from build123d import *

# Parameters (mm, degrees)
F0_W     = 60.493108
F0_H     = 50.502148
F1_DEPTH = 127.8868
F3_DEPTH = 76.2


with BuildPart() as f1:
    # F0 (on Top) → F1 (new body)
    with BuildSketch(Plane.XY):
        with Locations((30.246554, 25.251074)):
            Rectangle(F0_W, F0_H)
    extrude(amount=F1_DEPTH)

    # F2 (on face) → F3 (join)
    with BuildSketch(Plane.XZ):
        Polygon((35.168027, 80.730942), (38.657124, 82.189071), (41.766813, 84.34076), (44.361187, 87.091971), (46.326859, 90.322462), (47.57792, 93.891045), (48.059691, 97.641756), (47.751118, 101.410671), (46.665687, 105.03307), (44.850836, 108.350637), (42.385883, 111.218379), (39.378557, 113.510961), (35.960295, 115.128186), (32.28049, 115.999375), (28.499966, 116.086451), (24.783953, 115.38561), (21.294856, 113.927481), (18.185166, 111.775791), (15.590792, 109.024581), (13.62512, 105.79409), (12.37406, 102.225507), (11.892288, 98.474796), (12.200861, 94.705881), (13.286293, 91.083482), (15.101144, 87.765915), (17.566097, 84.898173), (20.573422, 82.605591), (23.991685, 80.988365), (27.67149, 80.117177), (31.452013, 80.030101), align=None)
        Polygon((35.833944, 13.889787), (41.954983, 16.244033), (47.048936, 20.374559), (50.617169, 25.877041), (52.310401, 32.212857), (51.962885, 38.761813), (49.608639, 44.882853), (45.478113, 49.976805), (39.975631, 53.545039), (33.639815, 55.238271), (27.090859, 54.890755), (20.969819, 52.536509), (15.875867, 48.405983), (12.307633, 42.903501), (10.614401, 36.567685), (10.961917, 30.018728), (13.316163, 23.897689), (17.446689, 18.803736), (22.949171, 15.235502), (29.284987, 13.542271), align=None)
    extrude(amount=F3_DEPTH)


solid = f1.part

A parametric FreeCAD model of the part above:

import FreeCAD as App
import Part
import Sketcher
from FreeCAD import Vector
Q = App.Units.Quantity

doc = App.newDocument("Part")
body = doc.addObject("PartDesign::Body", "Body")

# Sketch on XY plane
sketch1 = body.newObject("Sketcher::SketchObject", "Sketch")
sketch1.AttachmentSupport = (doc.getObject("XY_Plane"), [""])
sketch1.MapMode = "FlatFace"
sketch1.addGeometry([
    Part.LineSegment(Vector(0, 51, 0), Vector(0, 0, 0)),
    Part.LineSegment(Vector(0, 0, 0), Vector(60, 0, 0)),
    Part.LineSegment(Vector(60, 0, 0), Vector(60, 51, 0)),
    Part.LineSegment(Vector(60, 51, 0), Vector(0, 51, 0)),
], False)
sketch1.addConstraint([
    Sketcher.Constraint("Coincident", 0, 2, 1, 1),
    Sketcher.Constraint("Coincident", 1, 2, 2, 1),
    Sketcher.Constraint("Coincident", 2, 2, 3, 1),
    Sketcher.Constraint("Coincident", 3, 2, 0, 1),
    Sketcher.Constraint("Vertical", 0),
    Sketcher.Constraint("Horizontal", 1),
    Sketcher.Constraint("Vertical", 2),
    Sketcher.Constraint("Horizontal", 3),
    Sketcher.Constraint("Coincident", 0, 2, -1, 1),
    Sketcher.Constraint("DistanceX", 1, 1, 1, 2, Q("60.493108 mm")),
    Sketcher.Constraint("DistanceY", 0, 2, 0, 1, Q("50.502148 mm")),
])
pad1 = body.newObject("PartDesign::Pad", "Pad")
pad1.Profile = sketch1
pad1.Length = 127.8868

# Sketch on XZ plane
sketch2 = body.newObject("Sketcher::SketchObject", "Sketch001")
sketch2.AttachmentSupport = (doc.getObject("XZ_Plane"), [""])
sketch2.MapMode = "FlatFace"
sketch2.addGeometry([
    Part.LineSegment(Vector(35.168027, 80.730942, 0), Vector(38.657124, 82.189071, 0)),  # 0
    Part.LineSegment(Vector(38.657124, 82.189071, 0), Vector(41.766813, 84.34076, 0)),  # 1
    Part.LineSegment(Vector(41.766813, 84.34076, 0), Vector(44.361187, 87.091971, 0)),  # 2
    Part.LineSegment(Vector(44.361187, 87.091971, 0), Vector(46.326859, 90.322462, 0)),  # 3
    Part.LineSegment(Vector(46.326859, 90.322462, 0), Vector(47.57792, 93.891045, 0)),  # 4
    Part.LineSegment(Vector(47.57792, 93.891045, 0), Vector(48.059691, 97.641756, 0)),  # 5
    Part.LineSegment(Vector(48.059691, 97.641756, 0), Vector(47.751118, 101.410671, 0)),  # 6
    Part.LineSegment(Vector(47.751118, 101.410671, 0), Vector(46.665687, 105.03307, 0)),  # 7
    Part.LineSegment(Vector(46.665687, 105.03307, 0), Vector(44.850836, 108.350637, 0)),  # 8
    Part.LineSegment(Vector(44.850836, 108.350637, 0), Vector(42.385883, 111.218379, 0)),  # 9
    Part.LineSegment(Vector(42.385883, 111.218379, 0), Vector(39.378557, 113.510961, 0)),  # 10
    Part.LineSegment(Vector(39.378557, 113.510961, 0), Vector(35.960295, 115.128186, 0)),  # 11
    Part.LineSegment(Vector(35.960295, 115.128186, 0), Vector(32.28049, 115.999375, 0)),  # 12
    Part.LineSegment(Vector(32.28049, 115.999375, 0), Vector(28.499966, 116.086451, 0)),  # 13
    Part.LineSegment(Vector(28.499966, 116.086451, 0), Vector(24.783953, 115.38561, 0)),  # 14
    Part.LineSegment(Vector(24.783953, 115.38561, 0), Vector(21.294856, 113.927481, 0)),  # 15
    Part.LineSegment(Vector(21.294856, 113.927481, 0), Vector(18.185166, 111.775791, 0)),  # 16
    Part.LineSegment(Vector(18.185166, 111.775791, 0), Vector(15.590792, 109.024581, 0)),  # 17
    Part.LineSegment(Vector(15.590792, 109.024581, 0), Vector(13.62512, 105.79409, 0)),  # 18
    Part.LineSegment(Vector(13.62512, 105.79409, 0), Vector(12.37406, 102.225507, 0)),  # 19
    Part.LineSegment(Vector(12.37406, 102.225507, 0), Vector(11.892288, 98.474796, 0)),  # 20
    Part.LineSegment(Vector(11.892288, 98.474796, 0), Vector(12.200861, 94.705881, 0)),  # 21
    Part.LineSegment(Vector(12.200861, 94.705881, 0), Vector(13.286293, 91.083482, 0)),  # 22
    Part.LineSegment(Vector(13.286293, 91.083482, 0), Vector(15.101144, 87.765915, 0)),  # 23
    Part.LineSegment(Vector(15.101144, 87.765915, 0), Vector(17.566097, 84.898173, 0)),  # 24
    Part.LineSegment(Vector(17.566097, 84.898173, 0), Vector(20.573422, 82.605591, 0)),  # 25
    Part.LineSegment(Vector(20.573422, 82.605591, 0), Vector(23.991685, 80.988365, 0)),  # 26
    Part.LineSegment(Vector(23.991685, 80.988365, 0), Vector(27.67149, 80.117177, 0)),  # 27
    Part.LineSegment(Vector(27.67149, 80.117177, 0), Vector(31.452013, 80.030101, 0)),  # 28
    Part.LineSegment(Vector(31.452013, 80.030101, 0), Vector(35.168027, 80.730942, 0)),  # 29
    Part.LineSegment(Vector(35.833944, 13.889787, 0), Vector(41.954983, 16.244033, 0)),  # 30
    Part.LineSegment(Vector(41.954983, 16.244033, 0), Vector(47.048936, 20.374559, 0)),  # 31
    Part.LineSegment(Vector(47.048936, 20.374559, 0), Vector(50.617169, 25.877041, 0)),  # 32
    Part.LineSegment(Vector(50.617169, 25.877041, 0), Vector(52.310401, 32.212857, 0)),  # 33
    Part.LineSegment(Vector(52.310401, 32.212857, 0), Vector(51.962885, 38.761813, 0)),  # 34
    Part.LineSegment(Vector(51.962885, 38.761813, 0), Vector(49.608639, 44.882853, 0)),  # 35
    Part.LineSegment(Vector(49.608639, 44.882853, 0), Vector(45.478113, 49.976805, 0)),  # 36
    Part.LineSegment(Vector(45.478113, 49.976805, 0), Vector(39.975631, 53.545039, 0)),  # 37
    Part.LineSegment(Vector(39.975631, 53.545039, 0), Vector(33.639815, 55.238271, 0)),  # 38
    Part.LineSegment(Vector(33.639815, 55.238271, 0), Vector(27.090859, 54.890755, 0)),  # 39
    Part.LineSegment(Vector(27.090859, 54.890755, 0), Vector(20.969819, 52.536509, 0)),  # 40
    Part.LineSegment(Vector(20.969819, 52.536509, 0), Vector(15.875867, 48.405983, 0)),  # 41
    Part.LineSegment(Vector(15.875867, 48.405983, 0), Vector(12.307633, 42.903501, 0)),  # 42
    Part.LineSegment(Vector(12.307633, 42.903501, 0), Vector(10.614401, 36.567685, 0)),  # 43
    Part.LineSegment(Vector(10.614401, 36.567685, 0), Vector(10.961917, 30.018728, 0)),  # 44
    Part.LineSegment(Vector(10.961917, 30.018728, 0), Vector(13.316163, 23.897689, 0)),  # 45
    Part.LineSegment(Vector(13.316163, 23.897689, 0), Vector(17.446689, 18.803736, 0)),  # 46
    Part.LineSegment(Vector(17.446689, 18.803736, 0), Vector(22.949171, 15.235502, 0)),  # 47
    Part.LineSegment(Vector(22.949171, 15.235502, 0), Vector(29.284987, 13.542271, 0)),  # 48
    Part.LineSegment(Vector(29.284987, 13.542271, 0), Vector(35.833944, 13.889787, 0)),  # 49
], False)
sketch2.addConstraint([
    Sketcher.Constraint("Coincident", 0, 2, 1, 1),
    Sketcher.Constraint("Coincident", 1, 2, 2, 1),
    Sketcher.Constraint("Coincident", 2, 2, 3, 1),
    Sketcher.Constraint("Coincident", 3, 2, 4, 1),
    Sketcher.Constraint("Coincident", 4, 2, 5, 1),
    Sketcher.Constraint("Coincident", 5, 2, 6, 1),
    Sketcher.Constraint("Coincident", 6, 2, 7, 1),
    Sketcher.Constraint("Coincident", 7, 2, 8, 1),
    Sketcher.Constraint("Coincident", 8, 2, 9, 1),
    Sketcher.Constraint("Coincident", 9, 2, 10, 1),
    Sketcher.Constraint("Coincident", 10, 2, 11, 1),
    Sketcher.Constraint("Coincident", 11, 2, 12, 1),
    Sketcher.Constraint("Coincident", 12, 2, 13, 1),
    Sketcher.Constraint("Coincident", 13, 2, 14, 1),
    Sketcher.Constraint("Coincident", 14, 2, 15, 1),
    Sketcher.Constraint("Coincident", 15, 2, 16, 1),
    Sketcher.Constraint("Coincident", 16, 2, 17, 1),
    Sketcher.Constraint("Coincident", 17, 2, 18, 1),
    Sketcher.Constraint("Coincident", 18, 2, 19, 1),
    Sketcher.Constraint("Coincident", 19, 2, 20, 1),
    Sketcher.Constraint("Coincident", 20, 2, 21, 1),
    Sketcher.Constraint("Coincident", 21, 2, 22, 1),
    Sketcher.Constraint("Coincident", 22, 2, 23, 1),
    Sketcher.Constraint("Coincident", 23, 2, 24, 1),
    Sketcher.Constraint("Coincident", 24, 2, 25, 1),
    Sketcher.Constraint("Coincident", 25, 2, 26, 1),
    Sketcher.Constraint("Coincident", 26, 2, 27, 1),
    Sketcher.Constraint("Coincident", 27, 2, 28, 1),
    Sketcher.Constraint("Coincident", 28, 2, 29, 1),
    Sketcher.Constraint("Coincident", 29, 2, 0, 1),
    Sketcher.Constraint("Coincident", 30, 2, 31, 1),
    Sketcher.Constraint("Coincident", 31, 2, 32, 1),
    Sketcher.Constraint("Coincident", 32, 2, 33, 1),
    Sketcher.Constraint("Coincident", 33, 2, 34, 1),
    Sketcher.Constraint("Coincident", 34, 2, 35, 1),
    Sketcher.Constraint("Coincident", 35, 2, 36, 1),
    Sketcher.Constraint("Coincident", 36, 2, 37, 1),
    Sketcher.Constraint("Coincident", 37, 2, 38, 1),
    Sketcher.Constraint("Coincident", 38, 2, 39, 1),
    Sketcher.Constraint("Coincident", 39, 2, 40, 1),
    Sketcher.Constraint("Coincident", 40, 2, 41, 1),
    Sketcher.Constraint("Coincident", 41, 2, 42, 1),
    Sketcher.Constraint("Coincident", 42, 2, 43, 1),
    Sketcher.Constraint("Coincident", 43, 2, 44, 1),
    Sketcher.Constraint("Coincident", 44, 2, 45, 1),
    Sketcher.Constraint("Coincident", 45, 2, 46, 1),
    Sketcher.Constraint("Coincident", 46, 2, 47, 1),
    Sketcher.Constraint("Coincident", 47, 2, 48, 1),
    Sketcher.Constraint("Coincident", 48, 2, 49, 1),
    Sketcher.Constraint("Coincident", 49, 2, 30, 1),
    Sketcher.Constraint("DistanceY", 1, 2, 3, 2, Q("0.2355001 in")),
    Sketcher.Constraint("DistanceY", 18, 2, 16, 2, Q("0.2355 in")),
    Sketcher.Constraint("DistanceY", -1, 1, 28, 2, Q("80.030101 mm")),
    Sketcher.Constraint("DistanceX", -1, 1, 33, 2, Q("52.310401 mm")),
    Sketcher.Constraint("DistanceY", -1, 1, 42, 2, Q("42.903501 mm")),
    Sketcher.Constraint("DistanceX", -1, 1, 43, 2, Q("10.614401 mm")),
    Sketcher.Constraint("DistanceY", 0, 2, 2, 2, Q("4.9029 mm")),
    Sketcher.Constraint("DistanceY", 2, 2, 6, 2, Q("14.3187 mm")),
    Sketcher.Constraint("DistanceY", 6, 2, 7, 2, Q("3.622399 mm")),
    Sketcher.Constraint("DistanceX", 2, 2, 7, 2, Q("2.3045 mm")),
    Sketcher.Constraint("DistanceX", 15, 2, 10, 2, Q("18.083701 mm")),
    Sketcher.Constraint("DistanceX", 16, 2, 13, 2, Q("10.3148 mm")),
    Sketcher.Constraint("DistanceY", 17, 2, 15, 2, Q("4.9029 mm")),
    Sketcher.Constraint("DistanceX", 17, 2, 12, 2, Q("16.689698 mm")),
    Sketcher.Constraint("DistanceX", 21, 2, 19, 2, Q("0.173199 mm")),
    Sketcher.Constraint("DistanceY", 21, 2, 17, 2, Q("14.3187 mm")),
    Sketcher.Constraint("DistanceY", 22, 2, 21, 2, Q("3.622399 mm")),
    Sketcher.Constraint("DistanceX", 22, 2, 17, 2, Q("2.304499 mm")),
    Sketcher.Constraint("DistanceX", 28, 2, 1, 2, Q("10.3148 mm")),
    Sketcher.Constraint("DistanceY", 32, 2, 29, 2, Q("54.853901 mm")),
    Sketcher.Constraint("DistanceX", 38, 2, 36, 2, Q("11.838298 mm")),
    Sketcher.Constraint("DistanceX", 28, 2, 38, 2, Q("2.187802 mm")),
    Sketcher.Constraint("DistanceX", 42, 2, 37, 2, Q("27.667998 mm")),
    Sketcher.Constraint("DistanceY", 43, 2, 41, 2, Q("11.838298 mm")),
    Sketcher.Constraint("DistanceX", 46, 2, 48, 2, Q("11.838298 mm")),
    Sketcher.Constraint("Distance", 30, Q("6.55817 mm")),
    Sketcher.Constraint("Distance", 31, Q("6.558171 mm")),
    Sketcher.Constraint("Distance", 32, Q("6.55817 mm")),
    Sketcher.Constraint("Distance", 33, Q("6.55817 mm")),
    Sketcher.Constraint("Distance", 34, Q("6.55817 mm")),
    Sketcher.Constraint("Distance", 35, Q("6.558171 mm")),
    Sketcher.Constraint("Distance", 36, Q("6.55817 mm")),
    Sketcher.Constraint("Distance", 37, Q("6.558171 mm")),
    Sketcher.Constraint("Distance", 38, Q("6.55817 mm")),
    Sketcher.Constraint("Distance", 39, Q("6.55817 mm")),
    Sketcher.Constraint("Distance", 40, Q("6.558171 mm")),
    Sketcher.Constraint("Distance", 41, Q("6.55817 mm")),
    Sketcher.Constraint("Distance", 42, Q("6.558171 mm")),
    Sketcher.Constraint("Distance", 43, Q("6.55817 mm")),
    Sketcher.Constraint("Distance", 44, Q("6.558171 mm")),
    Sketcher.Constraint("Distance", 45, Q("6.55817 mm")),
    Sketcher.Constraint("Distance", 46, Q("6.558171 mm")),
    Sketcher.Constraint("Distance", 47, Q("6.558171 mm")),
    Sketcher.Constraint("Distance", 48, Q("6.55817 mm")),
    Sketcher.Constraint("Distance", 49, Q("6.558171 mm")),
    Sketcher.Constraint("DistanceY", -1, 1, 0, 2, Q("82.189071 mm")),
    Sketcher.Constraint("DistanceY", -1, 1, 1, 2, Q("84.34076 mm")),
    Sketcher.Constraint("DistanceX", -1, 1, 3, 2, Q("46.326859 mm")),
    Sketcher.Constraint("DistanceX", -1, 1, 4, 2, Q("47.57792 mm")),
    Sketcher.Constraint("DistanceX", -1, 1, 5, 2, Q("48.059691 mm")),
    Sketcher.Constraint("DistanceY", -1, 1, 9, 2, Q("111.218379 mm")),
    Sketcher.Constraint("DistanceY", -1, 1, 10, 2, Q("113.510961 mm")),
    Sketcher.Constraint("DistanceX", -1, 1, 12, 2, Q("32.28049 mm")),
    Sketcher.Constraint("DistanceY", -1, 1, 13, 2, Q("116.086451 mm")),
    Sketcher.Constraint("DistanceY", -1, 1, 14, 2, Q("115.38561 mm")),
    Sketcher.Constraint("DistanceY", -1, 1, 15, 2, Q("113.927481 mm")),
    Sketcher.Constraint("DistanceY", -1, 1, 16, 2, Q("111.775791 mm")),
    Sketcher.Constraint("DistanceX", -1, 1, 18, 2, Q("13.62512 mm")),
    Sketcher.Constraint("DistanceX", -1, 1, 19, 2, Q("12.37406 mm")),
    Sketcher.Constraint("DistanceX", -1, 1, 20, 2, Q("11.892288 mm")),
    Sketcher.Constraint("DistanceY", -1, 1, 25, 2, Q("82.605591 mm")),
    Sketcher.Constraint("DistanceX", -1, 1, 27, 2, Q("27.67149 mm")),
    Sketcher.Constraint("DistanceY", -1, 1, 29, 2, Q("80.730942 mm")),
    Sketcher.Constraint("DistanceY", -1, 1, 31, 2, Q("20.374559 mm")),
    Sketcher.Constraint("DistanceX", -1, 1, 32, 2, Q("50.617169 mm")),
    Sketcher.Constraint("DistanceX", -1, 1, 35, 2, Q("49.608639 mm")),
    Sketcher.Constraint("DistanceX", -1, 1, 37, 2, Q("39.975631 mm")),
    Sketcher.Constraint("DistanceY", -1, 1, 37, 2, Q("53.545039 mm")),
    Sketcher.Constraint("DistanceY", -1, 1, 38, 2, Q("55.238271 mm")),
    Sketcher.Constraint("DistanceX", -1, 1, 39, 2, Q("27.090859 mm")),
    Sketcher.Constraint("DistanceY", -1, 1, 45, 2, Q("23.897689 mm")),
    Sketcher.Constraint("DistanceX", -1, 1, 46, 2, Q("17.446689 mm")),
    Sketcher.Constraint("DistanceX", -1, 1, 47, 2, Q("22.949171 mm")),
    Sketcher.Constraint("DistanceY", -1, 1, 48, 2, Q("13.542271 mm")),
    Sketcher.Constraint("DistanceX", 0, 2, 1, 2, Q("3.109689 mm")),
    Sketcher.Constraint("DistanceX", 2, 2, 3, 2, Q("1.965672 mm")),
    Sketcher.Constraint("DistanceY", 4, 2, 5, 2, Q("3.750711 mm")),
    Sketcher.Constraint("DistanceX", 3, 2, 6, 2, Q("1.424259 mm")),
    Sketcher.Constraint("DistanceX", 8, 2, 7, 2, Q("1.814851 mm")),
    Sketcher.Constraint("DistanceY", 5, 2, 8, 2, Q("10.708881 mm")),
    Sketcher.Constraint("DistanceY", 8, 2, 9, 2, Q("2.867742 mm")),
    Sketcher.Constraint("DistanceX", 9, 2, 5, 2, Q("5.673808 mm")),
    Sketcher.Constraint("DistanceX", 10, 2, 8, 2, Q("5.472279 mm")),
    Sketcher.Constraint("DistanceX", 11, 2, 10, 2, Q("3.418262 mm")),
    Sketcher.Constraint("DistanceY", 8, 2, 11, 2, Q("6.777549 mm")),
    Sketcher.Constraint("DistanceY", 11, 2, 12, 2, Q("0.871189 mm")),
    Sketcher.Constraint("DistanceX", 13, 2, 11, 2, Q("7.460329 mm")),
    Sketcher.Constraint("DistanceX", 14, 2, 9, 2, Q("17.60193 mm")),
    Sketcher.Constraint("DistanceY", 20, 2, 19, 2, Q("3.750711 mm")),
    Sketcher.Constraint("DistanceX", 22, 2, 23, 2, Q("1.814851 mm")),
    Sketcher.Constraint("DistanceY", 23, 2, 20, 2, Q("10.708881 mm")),
    Sketcher.Constraint("DistanceY", 24, 2, 22, 2, Q("6.185309 mm")),
    Sketcher.Constraint("DistanceX", 20, 2, 24, 2, Q("5.673809 mm")),
    Sketcher.Constraint("DistanceX", 23, 2, 25, 2, Q("5.472278 mm")),
    Sketcher.Constraint("DistanceX", 24, 2, 26, 2, Q("6.425588 mm")),
    Sketcher.Constraint("DistanceY", 26, 2, 23, 2, Q("6.77755 mm")),
    Sketcher.Constraint("DistanceY", 27, 2, 26, 2, Q("0.871188 mm")),
    Sketcher.Constraint("DistanceX", 29, 2, 2, 2, Q("9.19316 mm")),
    Sketcher.Constraint("DistanceX", 28, 2, 30, 2, Q("10.50297 mm")),
    Sketcher.Constraint("DistanceY", 30, 2, 26, 2, Q("64.744332 mm")),
])
pad2 = body.newObject("PartDesign::Pad", "Pad001")
pad2.Profile = sketch2
pad2.Length = Q("3 in")

doc.recompute()
